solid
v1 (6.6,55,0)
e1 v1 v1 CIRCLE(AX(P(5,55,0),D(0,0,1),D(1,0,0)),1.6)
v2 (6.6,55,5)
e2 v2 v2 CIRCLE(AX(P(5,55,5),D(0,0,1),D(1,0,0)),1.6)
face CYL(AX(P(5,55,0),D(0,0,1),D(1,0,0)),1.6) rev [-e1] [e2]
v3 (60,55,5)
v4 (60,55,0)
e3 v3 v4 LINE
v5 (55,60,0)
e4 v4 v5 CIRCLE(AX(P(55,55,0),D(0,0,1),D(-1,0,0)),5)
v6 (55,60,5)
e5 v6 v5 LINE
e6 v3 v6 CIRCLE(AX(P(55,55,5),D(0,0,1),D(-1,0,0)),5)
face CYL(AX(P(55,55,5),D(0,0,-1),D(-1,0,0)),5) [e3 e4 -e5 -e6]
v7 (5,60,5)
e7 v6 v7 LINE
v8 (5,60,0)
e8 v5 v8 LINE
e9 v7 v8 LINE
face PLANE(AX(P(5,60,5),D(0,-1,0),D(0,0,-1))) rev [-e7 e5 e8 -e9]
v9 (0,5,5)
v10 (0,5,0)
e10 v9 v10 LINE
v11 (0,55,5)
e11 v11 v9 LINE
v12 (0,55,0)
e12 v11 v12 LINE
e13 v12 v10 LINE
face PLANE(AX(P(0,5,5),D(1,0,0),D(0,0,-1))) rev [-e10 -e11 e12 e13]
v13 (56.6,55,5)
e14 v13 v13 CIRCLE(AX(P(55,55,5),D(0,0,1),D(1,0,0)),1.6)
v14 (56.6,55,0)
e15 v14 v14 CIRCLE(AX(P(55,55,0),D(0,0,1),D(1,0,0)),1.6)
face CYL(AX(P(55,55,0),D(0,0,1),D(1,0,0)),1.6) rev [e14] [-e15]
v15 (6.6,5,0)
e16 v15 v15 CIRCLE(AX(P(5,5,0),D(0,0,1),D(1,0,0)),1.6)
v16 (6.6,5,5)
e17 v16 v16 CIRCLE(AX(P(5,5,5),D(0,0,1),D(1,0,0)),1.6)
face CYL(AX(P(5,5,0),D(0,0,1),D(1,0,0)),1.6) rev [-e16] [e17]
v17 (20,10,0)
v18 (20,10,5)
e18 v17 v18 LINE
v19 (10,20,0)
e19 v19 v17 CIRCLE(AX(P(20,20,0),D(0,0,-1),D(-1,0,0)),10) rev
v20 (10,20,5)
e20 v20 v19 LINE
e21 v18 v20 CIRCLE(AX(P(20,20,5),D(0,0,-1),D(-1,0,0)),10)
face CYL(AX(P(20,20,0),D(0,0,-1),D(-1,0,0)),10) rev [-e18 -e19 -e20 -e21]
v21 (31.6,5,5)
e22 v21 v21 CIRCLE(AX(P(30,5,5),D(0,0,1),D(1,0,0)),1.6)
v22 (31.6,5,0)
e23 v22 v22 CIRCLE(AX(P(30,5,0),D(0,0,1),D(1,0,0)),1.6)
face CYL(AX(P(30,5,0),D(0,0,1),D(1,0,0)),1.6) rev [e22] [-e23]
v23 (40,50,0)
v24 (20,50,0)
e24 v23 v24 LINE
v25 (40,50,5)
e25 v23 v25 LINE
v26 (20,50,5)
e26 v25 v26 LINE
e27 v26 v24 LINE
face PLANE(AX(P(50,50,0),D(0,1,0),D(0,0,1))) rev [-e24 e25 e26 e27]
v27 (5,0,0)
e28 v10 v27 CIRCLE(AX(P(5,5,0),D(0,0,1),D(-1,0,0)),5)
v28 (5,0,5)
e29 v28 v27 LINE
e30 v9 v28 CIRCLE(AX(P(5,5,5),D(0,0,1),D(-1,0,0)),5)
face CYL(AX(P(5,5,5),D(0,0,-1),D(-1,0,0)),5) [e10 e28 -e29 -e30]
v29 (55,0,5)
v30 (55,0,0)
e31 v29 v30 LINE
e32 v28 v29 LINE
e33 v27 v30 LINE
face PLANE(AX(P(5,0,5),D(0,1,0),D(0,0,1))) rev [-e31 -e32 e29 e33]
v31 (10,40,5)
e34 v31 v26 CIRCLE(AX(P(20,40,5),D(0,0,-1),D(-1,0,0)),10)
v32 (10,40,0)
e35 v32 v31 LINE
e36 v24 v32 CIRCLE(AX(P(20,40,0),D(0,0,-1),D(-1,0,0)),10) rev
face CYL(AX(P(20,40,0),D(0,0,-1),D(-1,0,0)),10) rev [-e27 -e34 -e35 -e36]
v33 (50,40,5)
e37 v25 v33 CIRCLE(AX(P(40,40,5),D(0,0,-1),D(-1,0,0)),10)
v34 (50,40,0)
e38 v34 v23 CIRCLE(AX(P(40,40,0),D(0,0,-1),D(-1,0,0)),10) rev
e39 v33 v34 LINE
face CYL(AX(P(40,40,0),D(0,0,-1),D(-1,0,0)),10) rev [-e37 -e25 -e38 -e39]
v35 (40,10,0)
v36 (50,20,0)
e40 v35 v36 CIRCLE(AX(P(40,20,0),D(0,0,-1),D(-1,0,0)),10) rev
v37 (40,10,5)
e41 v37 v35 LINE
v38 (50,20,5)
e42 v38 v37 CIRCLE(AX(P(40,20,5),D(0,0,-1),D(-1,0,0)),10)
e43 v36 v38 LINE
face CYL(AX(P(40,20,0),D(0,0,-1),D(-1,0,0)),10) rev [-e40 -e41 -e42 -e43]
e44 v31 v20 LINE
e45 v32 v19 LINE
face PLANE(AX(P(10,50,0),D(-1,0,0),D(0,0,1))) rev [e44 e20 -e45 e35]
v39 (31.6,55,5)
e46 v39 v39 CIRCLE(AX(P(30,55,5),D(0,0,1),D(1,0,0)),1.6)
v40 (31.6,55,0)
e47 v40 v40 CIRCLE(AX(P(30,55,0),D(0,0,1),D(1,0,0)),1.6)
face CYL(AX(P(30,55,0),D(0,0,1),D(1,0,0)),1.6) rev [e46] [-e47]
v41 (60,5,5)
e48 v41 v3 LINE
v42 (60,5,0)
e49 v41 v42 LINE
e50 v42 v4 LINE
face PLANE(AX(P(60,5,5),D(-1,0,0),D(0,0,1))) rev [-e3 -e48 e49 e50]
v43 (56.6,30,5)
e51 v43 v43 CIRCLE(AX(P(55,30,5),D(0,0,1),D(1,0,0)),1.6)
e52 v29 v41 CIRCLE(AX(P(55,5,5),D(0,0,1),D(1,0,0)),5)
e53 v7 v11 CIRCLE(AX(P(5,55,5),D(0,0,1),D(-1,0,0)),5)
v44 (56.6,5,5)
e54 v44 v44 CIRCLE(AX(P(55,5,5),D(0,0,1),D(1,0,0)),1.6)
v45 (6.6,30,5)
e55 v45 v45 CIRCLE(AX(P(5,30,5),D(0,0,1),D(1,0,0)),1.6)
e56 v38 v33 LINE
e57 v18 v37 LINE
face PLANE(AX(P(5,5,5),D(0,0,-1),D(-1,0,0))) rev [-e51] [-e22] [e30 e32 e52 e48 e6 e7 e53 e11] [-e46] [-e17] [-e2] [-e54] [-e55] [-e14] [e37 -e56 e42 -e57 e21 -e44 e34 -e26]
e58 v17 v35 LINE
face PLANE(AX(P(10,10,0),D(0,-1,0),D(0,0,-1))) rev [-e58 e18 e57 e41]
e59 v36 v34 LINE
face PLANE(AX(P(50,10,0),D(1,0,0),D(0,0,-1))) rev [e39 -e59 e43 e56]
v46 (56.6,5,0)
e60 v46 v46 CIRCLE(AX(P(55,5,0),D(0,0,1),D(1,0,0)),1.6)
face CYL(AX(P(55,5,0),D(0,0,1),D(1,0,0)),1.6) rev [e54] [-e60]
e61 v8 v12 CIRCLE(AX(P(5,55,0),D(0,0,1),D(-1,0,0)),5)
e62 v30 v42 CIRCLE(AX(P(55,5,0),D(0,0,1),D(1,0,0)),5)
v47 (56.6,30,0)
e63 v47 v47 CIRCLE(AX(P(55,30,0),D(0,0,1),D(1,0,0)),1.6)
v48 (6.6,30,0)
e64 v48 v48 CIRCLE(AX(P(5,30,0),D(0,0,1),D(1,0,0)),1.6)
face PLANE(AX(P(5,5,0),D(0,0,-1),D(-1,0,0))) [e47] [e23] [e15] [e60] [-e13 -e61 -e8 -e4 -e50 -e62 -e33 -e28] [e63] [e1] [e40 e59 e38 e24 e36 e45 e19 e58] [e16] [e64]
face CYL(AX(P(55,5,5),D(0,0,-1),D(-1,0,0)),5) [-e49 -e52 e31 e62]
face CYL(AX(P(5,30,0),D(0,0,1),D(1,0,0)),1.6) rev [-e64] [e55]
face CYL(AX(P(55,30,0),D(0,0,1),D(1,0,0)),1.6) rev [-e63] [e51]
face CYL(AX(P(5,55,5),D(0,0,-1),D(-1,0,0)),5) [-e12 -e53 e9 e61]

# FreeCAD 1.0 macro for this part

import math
import FreeCAD as App
import Part
import Sketcher


def edges_at(feature, points):
    """Names of the edges that pass closest to the given points."""
    edges = feature.Shape.Edges
    near = lambda p: min(range(len(edges)), key=lambda i: edges[i].distToShape(Part.Vertex(*p))[0])
    return sorted({f"Edge{near(p) + 1}" for p in points})

doc = App.newDocument("Part")
body = doc.addObject("PartDesign::Body", "Body")

# Sketch on XY plane
sketch1 = body.newObject("Sketcher::SketchObject", "Sketch")
sketch1.AttachmentSupport = (doc.getObject("XY_Plane"), [""])
sketch1.MapMode = "FlatFace"
sketch1.addGeometry([
    Part.LineSegment(App.Vector(5, 0, 0), App.Vector(55, 0, 0)),  # 0
    Part.ArcOfCircle(Part.Circle(App.Vector(55, 5, 0), App.Vector(0, 0, 1), 5), math.radians(-90), math.radians(0)),  # 1
    Part.LineSegment(App.Vector(60, 5, 0), App.Vector(60, 55, 0)),  # 2
    Part.ArcOfCircle(Part.Circle(App.Vector(55, 55, 0), App.Vector(0, 0, 1), 5), math.radians(0), math.radians(90)),  # 3
    Part.LineSegment(App.Vector(55, 60, 0), App.Vector(5, 60, 0)),  # 4
    Part.ArcOfCircle(Part.Circle(App.Vector(5, 55, 0), App.Vector(0, 0, 1), 5), math.radians(90), math.radians(180)),  # 5
    Part.LineSegment(App.Vector(0, 55, 0), App.Vector(0, 5, 0)),  # 6
    Part.ArcOfCircle(Part.Circle(App.Vector(5, 5, 0), App.Vector(0, 0, 1), 5), math.radians(180), math.radians(270)),  # 7
], False)
sketch1.addConstraint([
    Sketcher.Constraint("Tangent", 0, 2, 1, 1),
    Sketcher.Constraint("Tangent", 1, 2, 2, 1),
    Sketcher.Constraint("Tangent", 2, 2, 3, 1),
    Sketcher.Constraint("Tangent", 3, 2, 4, 1),
    Sketcher.Constraint("Tangent", 4, 2, 5, 1),
    Sketcher.Constraint("Tangent", 5, 2, 6, 1),
    Sketcher.Constraint("Tangent", 6, 2, 7, 1),
    Sketcher.Constraint("Tangent", 7, 2, 0, 1),
    Sketcher.Constraint("Horizontal", 0),
    Sketcher.Constraint("Vertical", 2),
    Sketcher.Constraint("Horizontal", 4),
    Sketcher.Constraint("Vertical", 6),
    Sketcher.Constraint("Equal", 1, 3),
    Sketcher.Constraint("Equal", 3, 5),
    Sketcher.Constraint("Equal", 5, 7),
    Sketcher.Constraint("PointOnObject", 0, 2, -1),
    Sketcher.Constraint("PointOnObject", 5, 2, -2),
    Sketcher.Constraint("Equal", 4, 2),
    Sketcher.Constraint("Radius", 1, 5.0),
    Sketcher.Constraint("DistanceX", 0, 1, 0, 2, 50.0),
])
pad1 = body.newObject("PartDesign::Pad", "Pad")
pad1.Profile = sketch1
pad1.Length = 5

# Sketch on XY plane
sketch2 = body.newObject("Sketcher::SketchObject", "Sketch001")
sketch2.AttachmentSupport = (doc.getObject("XY_Plane"), [""])
sketch2.MapMode = "FlatFace"
sketch2.AttachmentOffset = App.Placement(App.Vector(0, 0, 5), App.Rotation())
sketch2.addGeometry([
    Part.Circle(App.Vector(5, 55, 0), App.Vector(0, 0, 1), 1.6),  # 0
    Part.Circle(App.Vector(30, 55, 0), App.Vector(0, 0, 1), 1.6),  # 1
    Part.Circle(App.Vector(55, 55, 0), App.Vector(0, 0, 1), 1.6),  # 2
    Part.Circle(App.Vector(55, 30, 0), App.Vector(0, 0, 1), 1.6),  # 3
    Part.Circle(App.Vector(30, 5, 0), App.Vector(0, 0, 1), 1.6),  # 4
    Part.Circle(App.Vector(55, 5, 0), App.Vector(0, 0, 1), 1.6),  # 5
    Part.Circle(App.Vector(5, 30, 0), App.Vector(0, 0, 1), 1.6),  # 6
    Part.Circle(App.Vector(5, 5, 0), App.Vector(0, 0, 1), 1.6),  # 7
    Part.LineSegment(App.Vector(10, 50, 0), App.Vector(10, 10, 0)),  # 8
    Part.LineSegment(App.Vector(10, 10, 0), App.Vector(50, 10, 0)),  # 9
    Part.LineSegment(App.Vector(50, 10, 0), App.Vector(50, 50, 0)),  # 10
    Part.LineSegment(App.Vector(50, 50, 0), App.Vector(10, 50, 0)),  # 11
], False)
sketch2.addConstraint([
    Sketcher.Constraint("Coincident", 8, 2, 9, 1),
    Sketcher.Constraint("Coincident", 9, 2, 10, 1),
    Sketcher.Constraint("Coincident", 10, 2, 11, 1),
    Sketcher.Constraint("Coincident", 11, 2, 8, 1),
    Sketcher.Constraint("Vertical", 8),
    Sketcher.Constraint("Horizontal", 9),
    Sketcher.Constraint("Vertical", 10),
    Sketcher.Constraint("Horizontal", 11),
    Sketcher.Constraint("Equal", 0, 1),
    Sketcher.Constraint("Equal", 1, 2),
    Sketcher.Constraint("Equal", 2, 3),
    Sketcher.Constraint("Equal", 3, 4),
    Sketcher.Constraint("Equal", 4, 5),
    Sketcher.Constraint("Equal", 5, 6),
    Sketcher.Constraint("Equal", 6, 7),
    Sketcher.Constraint("Horizontal", 0, 3, 1, 3),
    Sketcher.Constraint("Horizontal", 1, 3, 2, 3),
    Sketcher.Constraint("Horizontal", 4, 3, 5, 3),
    Sketcher.Constraint("Horizontal", 3, 3, 6, 3),
    Sketcher.Constraint("Horizontal", 5, 3, 7, 3),
    Sketcher.Constraint("Vertical", 2, 3, 3, 3),
    Sketcher.Constraint("Vertical", 1, 3, 4, 3),
    Sketcher.Constraint("Vertical", 3, 3, 5, 3),
    Sketcher.Constraint("Vertical", 0, 3, 6, 3),
    Sketcher.Constraint("Vertical", 6, 3, 7, 3),
    Sketcher.Constraint("Equal", 11, 8),
    Sketcher.Constraint("Diameter", 0, 3.2),
    Sketcher.Constraint("DistanceX", 9, 1, 9, 2, 40.0),
    Sketcher.Constraint("DistanceX", -1, 1, 0, 3, 5.0),
    Sketcher.Constraint("DistanceY", -1, 1, 0, 3, 55.0),
    Sketcher.Constraint("DistanceX", -1, 1, 1, 3, 30.0),
    Sketcher.Constraint("DistanceX", -1, 1, 2, 3, 55.0),
    Sketcher.Constraint("DistanceY", -1, 1, 3, 3, 30.0),
    Sketcher.Constraint("DistanceY", -1, 1, 4, 3, 5.0),
    Sketcher.Constraint("DistanceX", -1, 1, 8, 2, 10.0),
    Sketcher.Constraint("DistanceY", -1, 1, 8, 2, 10.0),
])
pocket1 = body.newObject("PartDesign::Pocket", "Pocket")
pocket1.Profile = sketch2
pocket1.Type = "ThroughAll"
doc.recompute()

fillet = body.newObject("PartDesign::Fillet", "Fillet")
fillet.Base = (pocket1, edges_at(pocket1, [
    (10, 10, 2.5),
    (10, 50, 2.5),
    (50, 50, 2.5),
    (50, 10, 2.5),
]))
fillet.Radius = 10

doc.recompute()
